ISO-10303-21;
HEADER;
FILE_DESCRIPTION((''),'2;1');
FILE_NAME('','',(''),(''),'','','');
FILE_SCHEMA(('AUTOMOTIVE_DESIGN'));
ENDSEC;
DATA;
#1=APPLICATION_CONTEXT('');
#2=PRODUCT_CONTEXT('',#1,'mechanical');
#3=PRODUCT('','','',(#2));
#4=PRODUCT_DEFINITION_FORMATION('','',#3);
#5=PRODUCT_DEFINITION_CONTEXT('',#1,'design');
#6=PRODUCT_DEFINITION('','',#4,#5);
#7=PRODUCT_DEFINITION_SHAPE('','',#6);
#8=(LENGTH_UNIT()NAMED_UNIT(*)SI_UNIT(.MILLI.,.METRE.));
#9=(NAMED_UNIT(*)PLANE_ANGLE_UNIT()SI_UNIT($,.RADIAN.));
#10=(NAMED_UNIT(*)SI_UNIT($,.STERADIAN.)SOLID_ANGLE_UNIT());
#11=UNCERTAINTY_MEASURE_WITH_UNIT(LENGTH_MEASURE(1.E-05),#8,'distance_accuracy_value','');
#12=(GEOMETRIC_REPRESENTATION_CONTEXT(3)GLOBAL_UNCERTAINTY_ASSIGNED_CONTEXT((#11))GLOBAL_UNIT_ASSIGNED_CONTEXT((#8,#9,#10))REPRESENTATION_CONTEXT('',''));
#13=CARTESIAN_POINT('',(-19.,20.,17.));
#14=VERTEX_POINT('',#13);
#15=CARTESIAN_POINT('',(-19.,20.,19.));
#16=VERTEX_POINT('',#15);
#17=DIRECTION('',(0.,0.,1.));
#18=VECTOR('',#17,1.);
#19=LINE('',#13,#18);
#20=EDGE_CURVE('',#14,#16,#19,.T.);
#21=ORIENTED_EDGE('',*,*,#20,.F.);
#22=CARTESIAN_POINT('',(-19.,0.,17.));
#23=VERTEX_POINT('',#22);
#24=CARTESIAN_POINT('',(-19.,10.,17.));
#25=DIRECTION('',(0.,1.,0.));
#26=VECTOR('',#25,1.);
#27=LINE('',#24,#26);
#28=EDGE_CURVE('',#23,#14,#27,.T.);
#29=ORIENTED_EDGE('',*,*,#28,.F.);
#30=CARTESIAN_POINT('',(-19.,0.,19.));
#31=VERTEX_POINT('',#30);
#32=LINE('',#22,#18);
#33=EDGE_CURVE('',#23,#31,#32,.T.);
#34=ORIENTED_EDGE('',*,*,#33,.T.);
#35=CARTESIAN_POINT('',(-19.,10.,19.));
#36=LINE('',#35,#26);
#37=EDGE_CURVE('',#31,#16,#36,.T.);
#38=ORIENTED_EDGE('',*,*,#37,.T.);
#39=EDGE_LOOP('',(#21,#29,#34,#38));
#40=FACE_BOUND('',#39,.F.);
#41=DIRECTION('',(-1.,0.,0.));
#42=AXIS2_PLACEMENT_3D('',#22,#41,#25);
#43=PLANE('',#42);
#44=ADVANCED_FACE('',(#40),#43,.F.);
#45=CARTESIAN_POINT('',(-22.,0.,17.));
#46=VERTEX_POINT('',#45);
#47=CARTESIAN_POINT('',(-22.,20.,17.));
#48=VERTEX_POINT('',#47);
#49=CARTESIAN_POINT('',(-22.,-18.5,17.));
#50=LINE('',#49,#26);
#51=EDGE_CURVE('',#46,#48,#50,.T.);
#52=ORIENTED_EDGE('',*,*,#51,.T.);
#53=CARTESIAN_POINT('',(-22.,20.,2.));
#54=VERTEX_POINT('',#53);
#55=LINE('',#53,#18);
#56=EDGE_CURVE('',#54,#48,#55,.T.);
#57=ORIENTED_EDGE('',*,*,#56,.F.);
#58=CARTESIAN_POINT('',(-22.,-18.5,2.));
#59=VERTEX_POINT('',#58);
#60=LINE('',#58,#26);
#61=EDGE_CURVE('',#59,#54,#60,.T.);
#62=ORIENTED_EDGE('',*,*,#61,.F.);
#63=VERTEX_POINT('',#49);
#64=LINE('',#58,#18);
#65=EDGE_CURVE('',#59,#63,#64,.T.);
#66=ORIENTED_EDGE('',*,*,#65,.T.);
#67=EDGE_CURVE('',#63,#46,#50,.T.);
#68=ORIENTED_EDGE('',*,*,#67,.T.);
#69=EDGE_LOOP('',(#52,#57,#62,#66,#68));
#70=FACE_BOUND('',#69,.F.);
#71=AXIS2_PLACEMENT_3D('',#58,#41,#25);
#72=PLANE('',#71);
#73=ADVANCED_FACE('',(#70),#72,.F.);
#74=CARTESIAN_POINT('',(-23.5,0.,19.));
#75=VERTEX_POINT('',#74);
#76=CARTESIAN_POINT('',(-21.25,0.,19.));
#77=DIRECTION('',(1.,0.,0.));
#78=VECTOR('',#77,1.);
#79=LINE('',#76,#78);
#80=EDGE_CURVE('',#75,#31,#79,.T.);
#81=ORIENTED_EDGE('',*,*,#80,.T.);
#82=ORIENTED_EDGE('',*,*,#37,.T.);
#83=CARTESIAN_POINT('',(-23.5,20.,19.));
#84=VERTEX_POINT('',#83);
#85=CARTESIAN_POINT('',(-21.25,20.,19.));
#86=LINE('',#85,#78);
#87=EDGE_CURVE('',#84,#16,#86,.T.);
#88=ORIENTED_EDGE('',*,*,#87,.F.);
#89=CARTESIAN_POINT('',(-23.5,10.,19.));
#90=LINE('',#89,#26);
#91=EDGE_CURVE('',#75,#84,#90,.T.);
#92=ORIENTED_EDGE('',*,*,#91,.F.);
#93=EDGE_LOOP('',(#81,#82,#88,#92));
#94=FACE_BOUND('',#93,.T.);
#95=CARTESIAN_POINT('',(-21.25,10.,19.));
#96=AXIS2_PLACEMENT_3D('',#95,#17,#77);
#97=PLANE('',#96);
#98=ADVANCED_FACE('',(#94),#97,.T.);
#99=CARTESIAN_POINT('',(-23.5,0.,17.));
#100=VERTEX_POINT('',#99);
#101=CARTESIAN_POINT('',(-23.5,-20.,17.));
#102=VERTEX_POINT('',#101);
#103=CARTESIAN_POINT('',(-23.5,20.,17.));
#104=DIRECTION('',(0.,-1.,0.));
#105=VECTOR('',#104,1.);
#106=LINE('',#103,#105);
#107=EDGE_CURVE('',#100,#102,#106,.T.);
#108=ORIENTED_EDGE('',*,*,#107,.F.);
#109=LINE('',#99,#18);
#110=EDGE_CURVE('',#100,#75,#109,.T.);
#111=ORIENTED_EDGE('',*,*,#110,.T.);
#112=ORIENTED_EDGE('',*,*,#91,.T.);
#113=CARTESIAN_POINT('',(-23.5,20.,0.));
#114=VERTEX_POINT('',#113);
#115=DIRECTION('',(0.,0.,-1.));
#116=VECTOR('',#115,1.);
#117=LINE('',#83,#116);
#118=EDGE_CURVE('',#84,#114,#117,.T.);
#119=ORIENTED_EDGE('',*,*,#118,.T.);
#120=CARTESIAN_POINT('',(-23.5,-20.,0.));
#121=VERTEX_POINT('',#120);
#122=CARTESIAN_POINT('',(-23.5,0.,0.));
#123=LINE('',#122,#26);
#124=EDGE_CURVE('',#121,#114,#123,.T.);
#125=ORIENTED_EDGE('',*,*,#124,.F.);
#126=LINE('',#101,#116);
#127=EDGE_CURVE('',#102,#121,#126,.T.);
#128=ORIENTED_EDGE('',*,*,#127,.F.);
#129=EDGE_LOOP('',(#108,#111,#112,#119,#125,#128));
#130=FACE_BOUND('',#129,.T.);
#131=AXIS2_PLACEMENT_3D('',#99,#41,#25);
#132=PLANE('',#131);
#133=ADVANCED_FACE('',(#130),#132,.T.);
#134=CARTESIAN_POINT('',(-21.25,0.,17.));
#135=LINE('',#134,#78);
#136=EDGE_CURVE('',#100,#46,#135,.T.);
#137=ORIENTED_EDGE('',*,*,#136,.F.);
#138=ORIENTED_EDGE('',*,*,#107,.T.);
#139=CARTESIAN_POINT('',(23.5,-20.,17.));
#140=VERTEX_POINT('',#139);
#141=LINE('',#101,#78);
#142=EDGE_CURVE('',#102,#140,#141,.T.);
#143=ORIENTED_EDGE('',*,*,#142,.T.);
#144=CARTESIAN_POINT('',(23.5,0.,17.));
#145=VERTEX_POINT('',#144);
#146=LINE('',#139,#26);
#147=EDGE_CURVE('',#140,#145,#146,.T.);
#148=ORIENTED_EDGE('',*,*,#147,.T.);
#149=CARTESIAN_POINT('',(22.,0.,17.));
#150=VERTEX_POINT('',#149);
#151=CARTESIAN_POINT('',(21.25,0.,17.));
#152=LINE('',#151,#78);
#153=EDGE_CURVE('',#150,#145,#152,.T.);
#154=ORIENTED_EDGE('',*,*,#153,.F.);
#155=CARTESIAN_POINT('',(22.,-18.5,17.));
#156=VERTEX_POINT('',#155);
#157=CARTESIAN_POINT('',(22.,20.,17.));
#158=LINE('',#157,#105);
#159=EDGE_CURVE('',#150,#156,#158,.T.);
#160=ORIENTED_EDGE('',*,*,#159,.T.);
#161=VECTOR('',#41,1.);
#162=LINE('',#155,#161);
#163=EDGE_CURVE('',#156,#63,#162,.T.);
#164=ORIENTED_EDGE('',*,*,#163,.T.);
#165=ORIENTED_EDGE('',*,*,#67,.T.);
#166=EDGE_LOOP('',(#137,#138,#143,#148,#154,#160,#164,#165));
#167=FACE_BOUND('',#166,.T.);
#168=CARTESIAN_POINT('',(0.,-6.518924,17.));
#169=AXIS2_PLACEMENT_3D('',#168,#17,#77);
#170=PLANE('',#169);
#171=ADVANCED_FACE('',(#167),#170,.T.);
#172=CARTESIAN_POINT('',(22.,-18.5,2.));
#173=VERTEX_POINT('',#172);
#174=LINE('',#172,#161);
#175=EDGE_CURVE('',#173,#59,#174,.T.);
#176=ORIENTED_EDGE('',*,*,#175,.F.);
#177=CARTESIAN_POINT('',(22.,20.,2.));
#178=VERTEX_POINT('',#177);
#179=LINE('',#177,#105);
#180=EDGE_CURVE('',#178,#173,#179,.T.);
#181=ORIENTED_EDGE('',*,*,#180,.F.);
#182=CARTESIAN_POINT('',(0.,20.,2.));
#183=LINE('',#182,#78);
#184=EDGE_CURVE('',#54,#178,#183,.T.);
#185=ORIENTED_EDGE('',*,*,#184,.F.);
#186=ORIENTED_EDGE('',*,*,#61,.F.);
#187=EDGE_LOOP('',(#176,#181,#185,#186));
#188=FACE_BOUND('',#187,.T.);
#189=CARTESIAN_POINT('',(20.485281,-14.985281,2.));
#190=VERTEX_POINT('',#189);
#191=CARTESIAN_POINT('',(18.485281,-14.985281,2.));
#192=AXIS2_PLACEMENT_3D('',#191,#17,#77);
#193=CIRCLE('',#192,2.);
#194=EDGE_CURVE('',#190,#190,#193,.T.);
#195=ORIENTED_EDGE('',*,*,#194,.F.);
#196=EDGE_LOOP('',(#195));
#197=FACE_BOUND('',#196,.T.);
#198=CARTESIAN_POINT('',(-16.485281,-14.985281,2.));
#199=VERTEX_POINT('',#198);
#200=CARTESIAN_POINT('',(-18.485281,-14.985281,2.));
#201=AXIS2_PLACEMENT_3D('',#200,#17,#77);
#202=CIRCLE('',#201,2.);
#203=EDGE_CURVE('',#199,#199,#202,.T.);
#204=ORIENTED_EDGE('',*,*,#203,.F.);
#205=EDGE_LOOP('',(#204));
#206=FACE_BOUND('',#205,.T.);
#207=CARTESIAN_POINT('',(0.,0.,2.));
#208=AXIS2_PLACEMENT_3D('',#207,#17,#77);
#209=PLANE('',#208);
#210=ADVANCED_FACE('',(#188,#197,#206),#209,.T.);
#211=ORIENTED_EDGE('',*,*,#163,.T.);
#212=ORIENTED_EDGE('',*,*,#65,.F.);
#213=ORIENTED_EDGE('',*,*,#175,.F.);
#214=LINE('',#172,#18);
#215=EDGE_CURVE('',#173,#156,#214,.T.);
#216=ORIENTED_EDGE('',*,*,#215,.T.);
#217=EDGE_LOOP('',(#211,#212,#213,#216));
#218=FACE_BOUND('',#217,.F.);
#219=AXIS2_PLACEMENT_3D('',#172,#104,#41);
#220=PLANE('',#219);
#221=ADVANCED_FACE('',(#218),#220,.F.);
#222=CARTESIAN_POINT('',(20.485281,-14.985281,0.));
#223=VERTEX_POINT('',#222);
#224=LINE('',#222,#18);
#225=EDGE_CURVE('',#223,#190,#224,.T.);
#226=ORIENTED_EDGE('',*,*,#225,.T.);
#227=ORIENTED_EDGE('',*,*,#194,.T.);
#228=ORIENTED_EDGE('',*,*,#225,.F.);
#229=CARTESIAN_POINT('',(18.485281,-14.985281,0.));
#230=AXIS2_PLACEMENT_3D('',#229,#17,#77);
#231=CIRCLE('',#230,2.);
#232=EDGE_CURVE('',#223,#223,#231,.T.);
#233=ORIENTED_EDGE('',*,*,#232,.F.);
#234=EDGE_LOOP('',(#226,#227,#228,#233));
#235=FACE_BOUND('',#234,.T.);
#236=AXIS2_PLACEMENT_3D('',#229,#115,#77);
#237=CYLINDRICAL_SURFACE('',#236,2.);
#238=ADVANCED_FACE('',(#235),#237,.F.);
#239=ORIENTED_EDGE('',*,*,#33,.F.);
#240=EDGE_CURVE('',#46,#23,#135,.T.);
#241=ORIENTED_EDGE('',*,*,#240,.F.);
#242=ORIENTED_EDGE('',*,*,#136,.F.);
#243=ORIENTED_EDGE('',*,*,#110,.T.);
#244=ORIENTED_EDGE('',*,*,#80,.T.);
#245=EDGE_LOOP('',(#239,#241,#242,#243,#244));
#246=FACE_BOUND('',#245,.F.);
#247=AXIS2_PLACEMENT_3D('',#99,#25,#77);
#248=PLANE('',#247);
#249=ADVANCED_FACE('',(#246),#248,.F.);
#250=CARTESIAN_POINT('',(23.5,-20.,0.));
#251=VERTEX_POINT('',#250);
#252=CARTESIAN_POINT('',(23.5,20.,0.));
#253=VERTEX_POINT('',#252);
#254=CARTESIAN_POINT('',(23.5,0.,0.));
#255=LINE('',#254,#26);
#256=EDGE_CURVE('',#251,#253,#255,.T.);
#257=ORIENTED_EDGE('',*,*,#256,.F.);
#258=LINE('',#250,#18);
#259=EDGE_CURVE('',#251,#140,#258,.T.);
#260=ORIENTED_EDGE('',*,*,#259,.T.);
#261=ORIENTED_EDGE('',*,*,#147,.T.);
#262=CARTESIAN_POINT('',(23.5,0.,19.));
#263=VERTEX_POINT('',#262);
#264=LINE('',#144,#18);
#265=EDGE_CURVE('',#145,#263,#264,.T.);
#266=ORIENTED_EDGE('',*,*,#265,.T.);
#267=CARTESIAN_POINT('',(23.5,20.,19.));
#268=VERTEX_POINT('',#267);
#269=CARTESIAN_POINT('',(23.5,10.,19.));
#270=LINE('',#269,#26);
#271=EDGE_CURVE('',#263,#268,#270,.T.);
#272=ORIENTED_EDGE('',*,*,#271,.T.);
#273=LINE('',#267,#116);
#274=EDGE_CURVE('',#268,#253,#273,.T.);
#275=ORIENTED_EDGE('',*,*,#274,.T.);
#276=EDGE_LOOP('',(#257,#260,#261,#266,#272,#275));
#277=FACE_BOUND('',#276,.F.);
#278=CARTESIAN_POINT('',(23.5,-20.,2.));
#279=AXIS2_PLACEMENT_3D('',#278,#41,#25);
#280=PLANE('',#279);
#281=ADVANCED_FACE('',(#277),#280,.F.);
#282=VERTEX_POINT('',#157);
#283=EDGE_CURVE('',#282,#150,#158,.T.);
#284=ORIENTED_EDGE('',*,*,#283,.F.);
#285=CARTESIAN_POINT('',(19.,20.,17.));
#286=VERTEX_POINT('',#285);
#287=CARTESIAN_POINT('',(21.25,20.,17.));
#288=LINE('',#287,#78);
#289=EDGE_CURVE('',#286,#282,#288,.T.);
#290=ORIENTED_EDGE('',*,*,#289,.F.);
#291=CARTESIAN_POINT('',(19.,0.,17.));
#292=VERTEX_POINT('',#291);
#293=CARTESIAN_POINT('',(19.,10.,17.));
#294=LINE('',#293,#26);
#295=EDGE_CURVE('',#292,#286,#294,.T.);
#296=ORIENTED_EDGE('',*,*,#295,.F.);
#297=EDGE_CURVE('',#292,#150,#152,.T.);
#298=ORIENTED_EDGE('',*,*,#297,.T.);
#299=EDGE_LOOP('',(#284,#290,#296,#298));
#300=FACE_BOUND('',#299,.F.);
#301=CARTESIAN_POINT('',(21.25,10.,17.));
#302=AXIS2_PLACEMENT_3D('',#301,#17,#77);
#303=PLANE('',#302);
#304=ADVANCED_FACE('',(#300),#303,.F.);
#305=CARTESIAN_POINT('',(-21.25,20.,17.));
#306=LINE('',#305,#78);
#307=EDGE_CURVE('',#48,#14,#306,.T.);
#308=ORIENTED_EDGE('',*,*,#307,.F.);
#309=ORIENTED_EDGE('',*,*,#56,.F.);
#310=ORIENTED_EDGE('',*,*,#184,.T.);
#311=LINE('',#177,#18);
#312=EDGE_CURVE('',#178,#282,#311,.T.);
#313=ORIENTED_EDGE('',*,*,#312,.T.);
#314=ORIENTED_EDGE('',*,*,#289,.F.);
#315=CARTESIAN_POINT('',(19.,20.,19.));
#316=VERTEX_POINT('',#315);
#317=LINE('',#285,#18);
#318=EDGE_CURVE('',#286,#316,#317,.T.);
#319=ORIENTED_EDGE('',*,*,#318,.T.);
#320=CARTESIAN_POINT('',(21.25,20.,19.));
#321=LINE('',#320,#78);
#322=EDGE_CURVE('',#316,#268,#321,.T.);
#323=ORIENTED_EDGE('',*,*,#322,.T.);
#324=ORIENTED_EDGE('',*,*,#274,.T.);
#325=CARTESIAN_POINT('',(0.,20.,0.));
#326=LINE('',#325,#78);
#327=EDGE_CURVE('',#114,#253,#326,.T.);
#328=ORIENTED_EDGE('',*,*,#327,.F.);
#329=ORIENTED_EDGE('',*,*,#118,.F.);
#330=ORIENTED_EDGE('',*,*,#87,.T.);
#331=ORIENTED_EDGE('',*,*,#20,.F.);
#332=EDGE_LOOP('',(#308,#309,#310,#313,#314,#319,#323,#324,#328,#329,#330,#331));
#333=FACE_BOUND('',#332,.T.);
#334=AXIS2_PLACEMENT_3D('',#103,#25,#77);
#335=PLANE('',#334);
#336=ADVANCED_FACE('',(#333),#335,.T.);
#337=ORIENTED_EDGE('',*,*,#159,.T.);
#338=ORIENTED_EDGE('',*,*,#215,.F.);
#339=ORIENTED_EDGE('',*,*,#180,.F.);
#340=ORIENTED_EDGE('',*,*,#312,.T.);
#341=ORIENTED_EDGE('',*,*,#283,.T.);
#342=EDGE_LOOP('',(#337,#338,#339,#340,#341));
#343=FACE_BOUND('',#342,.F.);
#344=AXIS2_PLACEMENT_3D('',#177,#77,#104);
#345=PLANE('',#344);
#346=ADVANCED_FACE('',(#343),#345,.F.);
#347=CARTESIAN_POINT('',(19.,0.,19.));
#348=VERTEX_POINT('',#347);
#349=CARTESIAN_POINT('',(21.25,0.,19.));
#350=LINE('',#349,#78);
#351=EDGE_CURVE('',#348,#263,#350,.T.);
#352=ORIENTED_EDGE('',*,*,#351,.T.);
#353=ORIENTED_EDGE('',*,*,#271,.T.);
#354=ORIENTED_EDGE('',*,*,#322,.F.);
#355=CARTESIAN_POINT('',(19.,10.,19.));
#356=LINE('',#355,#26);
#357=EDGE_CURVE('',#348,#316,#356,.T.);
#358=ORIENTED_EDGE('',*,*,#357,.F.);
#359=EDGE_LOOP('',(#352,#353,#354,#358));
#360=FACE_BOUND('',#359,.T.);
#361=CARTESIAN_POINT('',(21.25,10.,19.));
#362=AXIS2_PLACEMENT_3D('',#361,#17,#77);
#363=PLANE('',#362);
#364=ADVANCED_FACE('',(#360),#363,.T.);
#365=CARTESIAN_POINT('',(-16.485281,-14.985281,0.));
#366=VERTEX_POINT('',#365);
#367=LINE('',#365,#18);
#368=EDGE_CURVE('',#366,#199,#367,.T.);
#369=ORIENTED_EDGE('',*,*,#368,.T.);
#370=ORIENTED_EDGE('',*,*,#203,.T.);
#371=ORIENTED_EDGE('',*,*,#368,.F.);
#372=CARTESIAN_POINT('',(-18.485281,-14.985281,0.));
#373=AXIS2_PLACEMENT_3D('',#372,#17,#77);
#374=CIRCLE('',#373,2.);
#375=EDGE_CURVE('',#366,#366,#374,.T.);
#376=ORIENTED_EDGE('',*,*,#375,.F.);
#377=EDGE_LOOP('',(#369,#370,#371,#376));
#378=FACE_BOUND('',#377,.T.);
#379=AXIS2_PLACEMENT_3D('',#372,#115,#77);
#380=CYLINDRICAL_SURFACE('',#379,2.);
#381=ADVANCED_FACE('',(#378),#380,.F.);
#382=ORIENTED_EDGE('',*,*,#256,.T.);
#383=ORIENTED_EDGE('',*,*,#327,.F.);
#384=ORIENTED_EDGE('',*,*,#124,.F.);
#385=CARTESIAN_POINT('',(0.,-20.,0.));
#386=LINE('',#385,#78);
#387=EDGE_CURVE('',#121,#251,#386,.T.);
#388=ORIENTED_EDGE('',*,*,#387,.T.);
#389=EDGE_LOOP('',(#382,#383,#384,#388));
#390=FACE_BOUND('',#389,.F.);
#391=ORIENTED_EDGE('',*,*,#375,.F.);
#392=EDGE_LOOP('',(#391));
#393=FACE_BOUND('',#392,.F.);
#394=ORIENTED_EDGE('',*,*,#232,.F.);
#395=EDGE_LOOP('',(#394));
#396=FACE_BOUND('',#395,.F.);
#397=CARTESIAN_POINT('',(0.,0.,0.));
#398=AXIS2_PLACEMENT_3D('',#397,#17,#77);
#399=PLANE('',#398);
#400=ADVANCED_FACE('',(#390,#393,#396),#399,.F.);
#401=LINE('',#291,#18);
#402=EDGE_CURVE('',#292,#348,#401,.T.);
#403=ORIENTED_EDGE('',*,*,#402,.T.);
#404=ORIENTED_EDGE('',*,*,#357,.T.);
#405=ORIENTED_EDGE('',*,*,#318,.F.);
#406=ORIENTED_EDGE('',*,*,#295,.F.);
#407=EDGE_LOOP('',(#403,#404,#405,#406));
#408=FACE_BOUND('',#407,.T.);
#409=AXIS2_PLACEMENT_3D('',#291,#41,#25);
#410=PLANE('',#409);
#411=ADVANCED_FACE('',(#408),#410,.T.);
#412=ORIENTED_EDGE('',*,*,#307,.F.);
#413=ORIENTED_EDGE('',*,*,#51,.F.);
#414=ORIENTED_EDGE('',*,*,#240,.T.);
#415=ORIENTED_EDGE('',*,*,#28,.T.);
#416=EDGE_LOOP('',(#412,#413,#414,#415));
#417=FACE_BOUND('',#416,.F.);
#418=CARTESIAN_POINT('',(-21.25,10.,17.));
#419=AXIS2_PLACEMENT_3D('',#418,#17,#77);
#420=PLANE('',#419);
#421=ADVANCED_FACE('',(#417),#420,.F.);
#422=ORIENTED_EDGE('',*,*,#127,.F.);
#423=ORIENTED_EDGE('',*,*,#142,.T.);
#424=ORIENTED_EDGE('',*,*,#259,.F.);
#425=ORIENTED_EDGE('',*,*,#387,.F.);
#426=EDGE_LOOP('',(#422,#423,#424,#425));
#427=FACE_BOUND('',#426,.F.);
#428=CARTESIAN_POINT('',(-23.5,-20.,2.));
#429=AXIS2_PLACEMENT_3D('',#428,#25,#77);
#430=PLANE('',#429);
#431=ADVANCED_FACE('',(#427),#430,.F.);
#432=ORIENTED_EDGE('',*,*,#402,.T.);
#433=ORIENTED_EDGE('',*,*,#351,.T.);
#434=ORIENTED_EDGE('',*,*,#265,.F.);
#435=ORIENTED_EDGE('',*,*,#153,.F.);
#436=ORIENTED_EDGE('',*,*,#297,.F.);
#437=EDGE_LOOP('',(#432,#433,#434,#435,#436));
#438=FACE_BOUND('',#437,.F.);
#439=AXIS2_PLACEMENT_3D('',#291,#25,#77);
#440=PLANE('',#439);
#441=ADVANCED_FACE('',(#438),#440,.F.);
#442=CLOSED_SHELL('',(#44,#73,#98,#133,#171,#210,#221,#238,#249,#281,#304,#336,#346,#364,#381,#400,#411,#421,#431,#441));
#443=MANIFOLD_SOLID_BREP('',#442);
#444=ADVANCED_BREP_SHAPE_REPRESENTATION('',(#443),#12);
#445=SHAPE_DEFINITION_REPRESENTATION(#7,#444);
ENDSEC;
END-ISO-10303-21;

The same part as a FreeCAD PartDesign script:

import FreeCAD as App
import Part
import Sketcher
Q = App.Units.Quantity


def add_polygon(sketch, points):
    """Adds a closed chain of lines whose ends are joined by coincident constraints."""
    first, n = sketch.GeometryCount, len(points)
    for a, b in zip(points, points[1:] + points[:1]):
        sketch.addGeometry(Part.LineSegment(App.Vector(*a, 0), App.Vector(*b, 0)), False)
    for i in range(n):
        sketch.addConstraint(Sketcher.Constraint("Coincident", first + i, 2, first + (i + 1) % n, 1))

doc = App.newDocument("Part")
body = doc.addObject("PartDesign::Body", "Body")

# Sketch on XY plane
sketch1 = body.newObject("Sketcher::SketchObject", "Sketch")
sketch1.AttachmentSupport = (doc.getObject("XY_Plane"), [""])
sketch1.MapMode = "FlatFace"
add_polygon(sketch1, [(-23.5, 20), (-23.5, -20), (23.5, -20), (23.5, 20)])  # lines 0-3
sketch1.addGeometry(Part.Circle(App.Vector(-18.5, -15, 0), App.Vector(0, 0, 1), 2), False)  # 4
sketch1.addGeometry(Part.Circle(App.Vector(18.5, -15, 0), App.Vector(0, 0, 1), 2), False)  # 5
sketch1.addConstraint([
    Sketcher.Constraint("Vertical", 0),
    Sketcher.Constraint("Horizontal", 1),
    Sketcher.Constraint("Vertical", 2),
    Sketcher.Constraint("Horizontal", 3),
    Sketcher.Constraint("Equal", 4, 5),
    Sketcher.Constraint("Symmetric", 0, 2, 2, 2, -1, 1),
    Sketcher.Constraint("Symmetric", 4, 3, 5, 3, -2),
    Sketcher.Constraint("Diameter", 4, Q("4 mm")),
    Sketcher.Constraint("DistanceX", 1, 1, 1, 2, Q("47 mm")),
    Sketcher.Constraint("DistanceY", 0, 2, 0, 1, Q("40 mm")),
    Sketcher.Constraint("DistanceX", 4, 3, -1, 1, Q("18.485281 mm")),
    Sketcher.Constraint("DistanceY", 4, 3, -1, 1, Q("14.985281 mm")),
])
pad1 = body.newObject("PartDesign::Pad", "Pad")
pad1.Profile = sketch1
pad1.Length = 2

# Sketch on XY plane
sketch2 = body.newObject("Sketcher::SketchObject", "Sketch001")
sketch2.AttachmentSupport = (doc.getObject("XY_Plane"), [""])
sketch2.MapMode = "FlatFace"
sketch2.AttachmentOffset = App.Placement(App.Vector(0, 0, 2), App.Rotation())
add_polygon(sketch2, [(-23.5, -20), (23.5, -20), (23.5, 20), (22, 20), (22, -18.5), (-22, -18.5), (-22, 20), (-23.5, 20)])  # lines 0-7
sketch2.addConstraint([
    Sketcher.Constraint("Horizontal", 0),
    Sketcher.Constraint("Vertical", 1),
    Sketcher.Constraint("Horizontal", 2),
    Sketcher.Constraint("Vertical", 3),
    Sketcher.Constraint("Horizontal", 4),
    Sketcher.Constraint("Vertical", 5),
    Sketcher.Constraint("Horizontal", 6),
    Sketcher.Constraint("Vertical", 7),
    Sketcher.Constraint("Symmetric", 0, 2, 6, 2, -1, 1),
    Sketcher.Constraint("Symmetric", 2, 2, 5, 2, -2),
    Sketcher.Constraint("DistanceX", 0, 1, 0, 2, Q("47 mm")),
    Sketcher.Constraint("DistanceX", 4, 2, 4, 1, Q("44 mm")),
    Sketcher.Constraint("DistanceY", 1, 1, 1, 2, Q("40 mm")),
    Sketcher.Constraint("DistanceY", 3, 2, 3, 1, Q("38.5 mm")),
])
pad2 = body.newObject("PartDesign::Pad", "Pad001")
pad2.Profile = sketch2
pad2.Length = 15

# Sketch on XY plane
sketch3 = body.newObject("Sketcher::SketchObject", "Sketch002")
sketch3.AttachmentSupport = (doc.getObject("XY_Plane"), [""])
sketch3.MapMode = "FlatFace"
sketch3.AttachmentOffset = App.Placement(App.Vector(0, 0, 17), App.Rotation())
add_polygon(sketch3, [(-23.5, 20), (-23.5, 0), (-19, 0), (-19, 20)])  # lines 0-3
add_polygon(sketch3, [(19, 20), (19, 0), (23.5, 0), (23.5, 20)])  # lines 4-7
sketch3.addConstraint([
    Sketcher.Constraint("Vertical", 0),
    Sketcher.Constraint("Horizontal", 1),
    Sketcher.Constraint("Vertical", 2),
    Sketcher.Constraint("Horizontal", 3),
    Sketcher.Constraint("Vertical", 4),
    Sketcher.Constraint("Horizontal", 5),
    Sketcher.Constraint("Vertical", 6),
    Sketcher.Constraint("Horizontal", 7),
    Sketcher.Constraint("Symmetric", 1, 2, 4, 2, -1, 1),
    Sketcher.Constraint("Symmetric", 0, 2, 5, 2, -2),
    Sketcher.Constraint("Horizontal", 3, 2, 6, 2),
    Sketcher.Constraint("DistanceY", 0, 2, 0, 1, Q("20 mm")),
    Sketcher.Constraint("DistanceX", 1, 1, 1, 2, Q("4.5 mm")),
    Sketcher.Constraint("DistanceX", 1, 2, -1, 1, Q("19 mm")),
])
pad3 = body.newObject("PartDesign::Pad", "Pad002")
pad3.Profile = sketch3
pad3.Length = 2

doc.recompute()
